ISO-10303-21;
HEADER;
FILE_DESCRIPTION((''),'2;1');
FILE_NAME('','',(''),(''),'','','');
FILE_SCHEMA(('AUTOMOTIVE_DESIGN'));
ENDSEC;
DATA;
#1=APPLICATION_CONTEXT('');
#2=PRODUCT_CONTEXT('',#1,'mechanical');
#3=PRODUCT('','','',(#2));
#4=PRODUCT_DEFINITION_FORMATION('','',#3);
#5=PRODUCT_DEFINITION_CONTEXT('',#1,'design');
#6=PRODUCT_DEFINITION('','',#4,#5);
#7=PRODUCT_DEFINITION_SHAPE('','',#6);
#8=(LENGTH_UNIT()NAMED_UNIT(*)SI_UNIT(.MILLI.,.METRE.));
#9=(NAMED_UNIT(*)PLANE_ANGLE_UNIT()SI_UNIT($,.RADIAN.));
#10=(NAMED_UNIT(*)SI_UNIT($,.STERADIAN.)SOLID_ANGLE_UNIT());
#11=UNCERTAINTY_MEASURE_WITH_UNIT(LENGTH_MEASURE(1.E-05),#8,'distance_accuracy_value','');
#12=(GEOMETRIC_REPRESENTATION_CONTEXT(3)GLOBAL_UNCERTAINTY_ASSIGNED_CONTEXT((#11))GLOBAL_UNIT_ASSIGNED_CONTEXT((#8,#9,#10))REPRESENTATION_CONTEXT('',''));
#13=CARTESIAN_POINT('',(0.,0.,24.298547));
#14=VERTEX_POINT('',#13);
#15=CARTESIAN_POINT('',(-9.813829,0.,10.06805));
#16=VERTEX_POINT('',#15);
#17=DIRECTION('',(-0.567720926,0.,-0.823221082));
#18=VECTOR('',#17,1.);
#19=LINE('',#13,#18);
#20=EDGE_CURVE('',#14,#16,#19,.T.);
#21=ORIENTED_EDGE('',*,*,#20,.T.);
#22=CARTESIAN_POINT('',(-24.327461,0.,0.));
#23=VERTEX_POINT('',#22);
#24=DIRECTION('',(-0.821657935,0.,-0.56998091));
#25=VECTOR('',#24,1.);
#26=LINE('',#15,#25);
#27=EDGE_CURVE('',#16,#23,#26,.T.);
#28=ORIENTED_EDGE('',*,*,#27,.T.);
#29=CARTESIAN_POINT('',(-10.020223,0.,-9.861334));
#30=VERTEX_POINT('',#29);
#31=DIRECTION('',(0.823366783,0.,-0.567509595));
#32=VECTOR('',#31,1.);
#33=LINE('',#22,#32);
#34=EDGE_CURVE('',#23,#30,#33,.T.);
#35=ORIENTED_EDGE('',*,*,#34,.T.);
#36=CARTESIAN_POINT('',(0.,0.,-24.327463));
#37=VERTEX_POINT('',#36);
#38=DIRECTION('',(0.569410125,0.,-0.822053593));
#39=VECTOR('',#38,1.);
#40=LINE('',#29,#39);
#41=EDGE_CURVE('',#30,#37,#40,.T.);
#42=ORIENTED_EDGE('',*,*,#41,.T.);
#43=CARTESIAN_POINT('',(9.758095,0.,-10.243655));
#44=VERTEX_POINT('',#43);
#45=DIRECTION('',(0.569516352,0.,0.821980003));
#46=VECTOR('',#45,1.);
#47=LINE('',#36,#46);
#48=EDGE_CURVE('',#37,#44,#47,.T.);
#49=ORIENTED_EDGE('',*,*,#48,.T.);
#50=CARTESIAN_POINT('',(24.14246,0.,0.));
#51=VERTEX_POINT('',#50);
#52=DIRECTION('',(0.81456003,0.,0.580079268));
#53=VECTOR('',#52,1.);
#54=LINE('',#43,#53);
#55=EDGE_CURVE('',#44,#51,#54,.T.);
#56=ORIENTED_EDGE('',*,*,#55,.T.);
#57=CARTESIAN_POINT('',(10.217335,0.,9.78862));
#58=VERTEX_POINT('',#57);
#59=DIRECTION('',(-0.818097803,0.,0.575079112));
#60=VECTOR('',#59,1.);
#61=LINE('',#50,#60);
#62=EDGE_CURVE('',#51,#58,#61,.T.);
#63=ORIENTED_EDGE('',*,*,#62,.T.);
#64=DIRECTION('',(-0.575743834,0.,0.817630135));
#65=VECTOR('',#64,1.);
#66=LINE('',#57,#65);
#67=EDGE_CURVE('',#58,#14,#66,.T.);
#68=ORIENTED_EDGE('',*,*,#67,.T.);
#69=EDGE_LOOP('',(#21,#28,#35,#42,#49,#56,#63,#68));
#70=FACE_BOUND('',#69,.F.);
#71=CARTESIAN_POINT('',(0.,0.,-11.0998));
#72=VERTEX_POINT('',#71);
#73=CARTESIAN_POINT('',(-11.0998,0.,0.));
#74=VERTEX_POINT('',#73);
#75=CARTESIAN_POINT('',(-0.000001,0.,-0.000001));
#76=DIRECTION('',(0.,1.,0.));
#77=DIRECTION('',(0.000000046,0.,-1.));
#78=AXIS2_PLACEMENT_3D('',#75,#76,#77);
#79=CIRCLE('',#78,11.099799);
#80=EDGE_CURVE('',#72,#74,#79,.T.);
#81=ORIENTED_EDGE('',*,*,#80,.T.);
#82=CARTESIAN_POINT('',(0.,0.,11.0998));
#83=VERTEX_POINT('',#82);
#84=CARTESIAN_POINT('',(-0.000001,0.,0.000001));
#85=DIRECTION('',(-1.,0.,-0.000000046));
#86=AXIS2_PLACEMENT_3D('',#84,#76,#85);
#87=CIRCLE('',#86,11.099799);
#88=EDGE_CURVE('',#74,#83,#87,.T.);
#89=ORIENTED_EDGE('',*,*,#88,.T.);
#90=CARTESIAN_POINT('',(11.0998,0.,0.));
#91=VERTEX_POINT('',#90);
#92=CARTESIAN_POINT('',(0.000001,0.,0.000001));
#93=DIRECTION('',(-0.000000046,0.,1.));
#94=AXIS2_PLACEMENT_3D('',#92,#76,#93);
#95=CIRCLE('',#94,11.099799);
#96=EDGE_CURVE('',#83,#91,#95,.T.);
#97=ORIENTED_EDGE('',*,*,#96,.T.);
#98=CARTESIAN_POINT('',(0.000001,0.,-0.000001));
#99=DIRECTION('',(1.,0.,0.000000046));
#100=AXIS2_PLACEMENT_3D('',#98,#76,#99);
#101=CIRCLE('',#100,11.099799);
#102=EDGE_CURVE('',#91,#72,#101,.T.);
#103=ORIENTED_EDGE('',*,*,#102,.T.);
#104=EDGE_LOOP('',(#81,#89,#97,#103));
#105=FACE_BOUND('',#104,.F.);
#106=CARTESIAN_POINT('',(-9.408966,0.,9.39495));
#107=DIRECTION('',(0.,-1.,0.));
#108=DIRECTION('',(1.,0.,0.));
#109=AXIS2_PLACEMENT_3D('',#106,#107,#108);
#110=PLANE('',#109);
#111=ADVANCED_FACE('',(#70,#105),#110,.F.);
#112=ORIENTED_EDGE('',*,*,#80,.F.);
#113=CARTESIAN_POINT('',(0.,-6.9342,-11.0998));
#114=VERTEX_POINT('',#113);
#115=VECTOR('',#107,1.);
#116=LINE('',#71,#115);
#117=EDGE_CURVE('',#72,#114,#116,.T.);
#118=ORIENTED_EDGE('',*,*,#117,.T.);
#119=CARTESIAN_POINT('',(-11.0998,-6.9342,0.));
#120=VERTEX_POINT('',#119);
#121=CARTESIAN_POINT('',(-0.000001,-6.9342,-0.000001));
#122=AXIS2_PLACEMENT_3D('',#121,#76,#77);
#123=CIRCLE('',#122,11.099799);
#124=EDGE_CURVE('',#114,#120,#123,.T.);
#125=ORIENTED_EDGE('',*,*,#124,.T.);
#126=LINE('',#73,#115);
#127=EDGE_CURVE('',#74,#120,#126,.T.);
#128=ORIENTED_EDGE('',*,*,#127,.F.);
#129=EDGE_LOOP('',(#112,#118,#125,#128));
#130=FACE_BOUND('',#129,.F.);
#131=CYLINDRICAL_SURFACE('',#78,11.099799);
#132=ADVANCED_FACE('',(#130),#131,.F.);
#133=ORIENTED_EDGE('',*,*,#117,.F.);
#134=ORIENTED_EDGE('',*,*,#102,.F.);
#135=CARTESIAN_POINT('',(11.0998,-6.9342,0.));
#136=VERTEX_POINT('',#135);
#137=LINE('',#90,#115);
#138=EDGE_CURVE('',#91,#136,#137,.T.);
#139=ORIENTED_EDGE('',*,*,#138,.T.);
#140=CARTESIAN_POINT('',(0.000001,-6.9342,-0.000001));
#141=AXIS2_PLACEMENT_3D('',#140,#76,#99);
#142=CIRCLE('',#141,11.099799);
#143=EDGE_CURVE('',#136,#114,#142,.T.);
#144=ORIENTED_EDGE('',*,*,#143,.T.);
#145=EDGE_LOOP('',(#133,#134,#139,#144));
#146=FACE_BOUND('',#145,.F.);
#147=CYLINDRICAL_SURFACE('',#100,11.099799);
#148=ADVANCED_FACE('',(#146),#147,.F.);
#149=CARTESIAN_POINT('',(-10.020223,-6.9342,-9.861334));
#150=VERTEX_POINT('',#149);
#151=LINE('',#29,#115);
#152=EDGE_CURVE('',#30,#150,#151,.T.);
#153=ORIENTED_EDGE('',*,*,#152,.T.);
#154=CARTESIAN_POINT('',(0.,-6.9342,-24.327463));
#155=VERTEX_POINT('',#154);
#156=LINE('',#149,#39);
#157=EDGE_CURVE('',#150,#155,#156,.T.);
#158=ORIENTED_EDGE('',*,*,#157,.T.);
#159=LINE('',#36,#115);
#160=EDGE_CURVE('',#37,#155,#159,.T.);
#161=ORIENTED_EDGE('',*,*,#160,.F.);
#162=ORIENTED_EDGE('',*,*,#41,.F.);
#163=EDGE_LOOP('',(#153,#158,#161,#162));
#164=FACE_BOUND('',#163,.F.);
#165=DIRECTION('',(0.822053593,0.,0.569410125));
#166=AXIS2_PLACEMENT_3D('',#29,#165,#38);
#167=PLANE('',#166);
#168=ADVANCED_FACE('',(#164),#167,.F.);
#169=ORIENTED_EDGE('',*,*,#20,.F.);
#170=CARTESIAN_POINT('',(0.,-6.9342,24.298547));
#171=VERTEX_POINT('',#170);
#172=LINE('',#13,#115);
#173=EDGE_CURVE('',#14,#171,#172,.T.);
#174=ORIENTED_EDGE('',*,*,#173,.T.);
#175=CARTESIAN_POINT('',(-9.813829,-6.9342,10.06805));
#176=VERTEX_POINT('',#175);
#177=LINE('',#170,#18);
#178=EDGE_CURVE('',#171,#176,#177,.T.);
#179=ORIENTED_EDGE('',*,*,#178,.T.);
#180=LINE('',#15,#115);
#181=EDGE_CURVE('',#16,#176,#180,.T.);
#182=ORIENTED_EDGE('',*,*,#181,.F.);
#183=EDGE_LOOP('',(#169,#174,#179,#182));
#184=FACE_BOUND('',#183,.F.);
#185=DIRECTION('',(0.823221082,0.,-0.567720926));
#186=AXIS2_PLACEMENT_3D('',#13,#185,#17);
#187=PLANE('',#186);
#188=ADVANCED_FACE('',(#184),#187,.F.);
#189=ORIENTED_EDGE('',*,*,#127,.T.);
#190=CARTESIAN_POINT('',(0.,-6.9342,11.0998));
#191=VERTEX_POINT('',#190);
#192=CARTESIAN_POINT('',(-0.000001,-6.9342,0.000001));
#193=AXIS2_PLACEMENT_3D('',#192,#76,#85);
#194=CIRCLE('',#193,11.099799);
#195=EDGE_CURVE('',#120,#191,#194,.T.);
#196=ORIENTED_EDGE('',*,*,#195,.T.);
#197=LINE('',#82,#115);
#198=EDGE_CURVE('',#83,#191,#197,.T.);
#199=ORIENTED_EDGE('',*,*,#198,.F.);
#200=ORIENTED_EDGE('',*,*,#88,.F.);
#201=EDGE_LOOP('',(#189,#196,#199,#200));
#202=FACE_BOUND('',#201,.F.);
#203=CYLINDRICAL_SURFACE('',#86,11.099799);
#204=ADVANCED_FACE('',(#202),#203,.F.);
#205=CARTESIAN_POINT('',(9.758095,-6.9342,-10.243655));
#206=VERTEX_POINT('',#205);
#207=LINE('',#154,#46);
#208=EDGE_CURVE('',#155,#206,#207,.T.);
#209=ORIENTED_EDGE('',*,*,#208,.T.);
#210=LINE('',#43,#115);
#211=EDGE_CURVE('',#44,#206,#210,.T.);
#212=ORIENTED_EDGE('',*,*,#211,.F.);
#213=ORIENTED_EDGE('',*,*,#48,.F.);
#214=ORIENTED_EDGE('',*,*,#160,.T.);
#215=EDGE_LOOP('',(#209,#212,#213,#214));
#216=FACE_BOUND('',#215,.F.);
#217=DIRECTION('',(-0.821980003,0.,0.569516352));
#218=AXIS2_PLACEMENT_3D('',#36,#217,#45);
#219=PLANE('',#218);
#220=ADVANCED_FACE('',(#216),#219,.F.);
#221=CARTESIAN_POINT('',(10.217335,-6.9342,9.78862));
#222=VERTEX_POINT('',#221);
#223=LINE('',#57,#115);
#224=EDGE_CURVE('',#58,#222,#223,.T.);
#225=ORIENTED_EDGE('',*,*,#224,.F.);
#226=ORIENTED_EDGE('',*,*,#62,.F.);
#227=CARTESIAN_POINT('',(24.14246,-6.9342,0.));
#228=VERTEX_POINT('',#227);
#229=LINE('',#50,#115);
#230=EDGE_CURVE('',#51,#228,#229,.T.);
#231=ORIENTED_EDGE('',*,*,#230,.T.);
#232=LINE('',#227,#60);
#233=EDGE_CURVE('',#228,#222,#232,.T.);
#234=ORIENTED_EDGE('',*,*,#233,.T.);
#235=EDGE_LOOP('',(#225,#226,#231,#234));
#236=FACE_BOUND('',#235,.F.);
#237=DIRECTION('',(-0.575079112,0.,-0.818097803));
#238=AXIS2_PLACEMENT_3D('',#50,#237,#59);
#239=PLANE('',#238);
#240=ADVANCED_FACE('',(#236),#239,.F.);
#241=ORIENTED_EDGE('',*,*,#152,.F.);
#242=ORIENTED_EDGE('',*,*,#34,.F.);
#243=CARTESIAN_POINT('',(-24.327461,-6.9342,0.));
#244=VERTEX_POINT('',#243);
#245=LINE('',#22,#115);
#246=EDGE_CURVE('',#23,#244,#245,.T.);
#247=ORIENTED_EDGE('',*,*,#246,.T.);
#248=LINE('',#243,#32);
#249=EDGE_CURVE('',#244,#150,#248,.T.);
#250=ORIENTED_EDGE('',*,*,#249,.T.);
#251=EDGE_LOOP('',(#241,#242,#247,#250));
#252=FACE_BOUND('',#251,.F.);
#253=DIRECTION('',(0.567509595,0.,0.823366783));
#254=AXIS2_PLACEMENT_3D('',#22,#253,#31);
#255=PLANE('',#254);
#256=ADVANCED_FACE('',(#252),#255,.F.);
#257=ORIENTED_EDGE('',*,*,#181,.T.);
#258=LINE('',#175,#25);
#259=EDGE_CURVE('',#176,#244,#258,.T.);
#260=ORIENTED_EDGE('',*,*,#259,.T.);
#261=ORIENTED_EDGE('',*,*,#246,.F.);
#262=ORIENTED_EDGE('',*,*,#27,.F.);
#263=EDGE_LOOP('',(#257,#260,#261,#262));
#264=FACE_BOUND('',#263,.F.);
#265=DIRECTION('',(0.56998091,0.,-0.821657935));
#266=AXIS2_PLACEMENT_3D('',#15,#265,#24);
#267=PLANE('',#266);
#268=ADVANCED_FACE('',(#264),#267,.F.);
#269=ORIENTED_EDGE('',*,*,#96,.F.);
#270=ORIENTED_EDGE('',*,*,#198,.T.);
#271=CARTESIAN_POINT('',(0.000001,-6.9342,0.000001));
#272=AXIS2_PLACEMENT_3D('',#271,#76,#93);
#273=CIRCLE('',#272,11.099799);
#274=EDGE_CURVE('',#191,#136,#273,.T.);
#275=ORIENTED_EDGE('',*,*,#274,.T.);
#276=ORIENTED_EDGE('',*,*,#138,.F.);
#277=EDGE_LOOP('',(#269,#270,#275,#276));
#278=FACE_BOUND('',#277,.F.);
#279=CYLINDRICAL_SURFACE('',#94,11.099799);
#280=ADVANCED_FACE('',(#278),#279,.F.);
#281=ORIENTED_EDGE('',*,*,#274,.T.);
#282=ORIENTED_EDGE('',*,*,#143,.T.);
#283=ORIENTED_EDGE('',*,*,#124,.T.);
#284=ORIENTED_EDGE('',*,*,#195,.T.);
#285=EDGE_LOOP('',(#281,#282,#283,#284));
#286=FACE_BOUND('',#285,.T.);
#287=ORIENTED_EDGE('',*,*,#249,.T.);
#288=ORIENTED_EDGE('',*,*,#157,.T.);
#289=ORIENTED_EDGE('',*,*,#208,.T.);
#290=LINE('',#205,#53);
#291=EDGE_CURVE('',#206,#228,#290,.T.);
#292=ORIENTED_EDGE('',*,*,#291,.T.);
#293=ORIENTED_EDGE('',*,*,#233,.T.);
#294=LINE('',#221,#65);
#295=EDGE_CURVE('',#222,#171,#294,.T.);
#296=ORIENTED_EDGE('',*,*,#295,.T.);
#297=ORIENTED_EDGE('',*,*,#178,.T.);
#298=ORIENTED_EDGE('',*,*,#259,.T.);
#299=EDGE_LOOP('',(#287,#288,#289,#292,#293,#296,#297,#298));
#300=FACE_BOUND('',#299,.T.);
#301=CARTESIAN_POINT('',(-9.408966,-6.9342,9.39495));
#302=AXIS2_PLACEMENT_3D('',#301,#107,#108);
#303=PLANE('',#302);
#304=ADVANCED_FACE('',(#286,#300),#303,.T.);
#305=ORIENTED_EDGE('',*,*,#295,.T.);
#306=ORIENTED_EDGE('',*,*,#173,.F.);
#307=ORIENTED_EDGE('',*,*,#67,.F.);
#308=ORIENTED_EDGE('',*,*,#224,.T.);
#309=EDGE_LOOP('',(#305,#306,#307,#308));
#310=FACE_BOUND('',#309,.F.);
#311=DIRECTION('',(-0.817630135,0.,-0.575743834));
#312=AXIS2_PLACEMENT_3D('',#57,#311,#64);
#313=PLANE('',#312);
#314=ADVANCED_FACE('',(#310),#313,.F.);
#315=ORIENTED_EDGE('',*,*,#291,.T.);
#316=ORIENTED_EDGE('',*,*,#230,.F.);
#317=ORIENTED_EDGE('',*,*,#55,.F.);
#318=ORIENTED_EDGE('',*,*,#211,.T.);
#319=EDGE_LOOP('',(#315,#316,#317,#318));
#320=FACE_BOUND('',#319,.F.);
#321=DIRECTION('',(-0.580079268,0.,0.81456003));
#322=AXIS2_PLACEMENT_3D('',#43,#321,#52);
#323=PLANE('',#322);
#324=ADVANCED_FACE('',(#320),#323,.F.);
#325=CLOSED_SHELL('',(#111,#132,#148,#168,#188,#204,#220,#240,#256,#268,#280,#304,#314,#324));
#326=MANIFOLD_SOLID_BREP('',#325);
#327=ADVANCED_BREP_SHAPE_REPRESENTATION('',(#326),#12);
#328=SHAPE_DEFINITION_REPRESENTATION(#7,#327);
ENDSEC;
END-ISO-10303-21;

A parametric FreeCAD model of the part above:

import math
import FreeCAD as App
import Part
import Sketcher
from FreeCAD import Vector
Q = App.Units.Quantity

doc = App.newDocument("Part")
body = doc.addObject("PartDesign::Body", "Body")

# Sketch on XZ plane
sketch1 = body.newObject("Sketcher::SketchObject", "Sketch")
sketch1.AttachmentSupport = (doc.getObject("XZ_Plane"), [""])
sketch1.MapMode = "FlatFace"
sketch1.addGeometry(Part.LineSegment(Vector(24, 0, 0), Vector(10, 10, 0)), False)
sketch1.addGeometry(Part.LineSegment(Vector(10, 10, 0), Vector(0, 24, 0)), False)
sketch1.addGeometry(Part.LineSegment(Vector(0, 24, 0), Vector(-10, 10, 0)), False)
sketch1.addGeometry(Part.LineSegment(Vector(-10, 10, 0), Vector(-24, 0, 0)), False)
sketch1.addGeometry(Part.LineSegment(Vector(-24, 0, 0), Vector(-10, -10, 0)), False)
sketch1.addGeometry(Part.LineSegment(Vector(-10, -10, 0), Vector(0, -24, 0)), False)
sketch1.addGeometry(Part.LineSegment(Vector(0, -24, 0), Vector(10, -10, 0)), False)
sketch1.addGeometry(Part.LineSegment(Vector(10, -10, 0), Vector(24, 0, 0)), False)
sketch1.addGeometry(Part.ArcOfCircle(Part.Circle(Vector(0, 0, 0), Vector(0, 0, 1), 11), math.radians(90), math.radians(180)), False)
sketch1.addGeometry(Part.ArcOfCircle(Part.Circle(Vector(0, 0, 0), Vector(0, 0, 1), 11), math.radians(0), math.radians(90)), False)
sketch1.addGeometry(Part.ArcOfCircle(Part.Circle(Vector(0, 0, 0), Vector(0, 0, 1), 11), math.radians(-90), math.radians(0)), False)
sketch1.addGeometry(Part.ArcOfCircle(Part.Circle(Vector(0, 0, 0), Vector(0, 0, 1), 11), math.radians(180), math.radians(270)), False)
sketch1.addConstraint(Sketcher.Constraint("Coincident", 0, 2, 1, 1))
sketch1.addConstraint(Sketcher.Constraint("Coincident", 1, 2, 2, 1))
sketch1.addConstraint(Sketcher.Constraint("Coincident", 2, 2, 3, 1))
sketch1.addConstraint(Sketcher.Constraint("Coincident", 3, 2, 4, 1))
sketch1.addConstraint(Sketcher.Constraint("Coincident", 4, 2, 5, 1))
sketch1.addConstraint(Sketcher.Constraint("Coincident", 5, 2, 6, 1))
sketch1.addConstraint(Sketcher.Constraint("Coincident", 6, 2, 7, 1))
sketch1.addConstraint(Sketcher.Constraint("Coincident", 7, 2, 0, 1))
sketch1.addConstraint(Sketcher.Constraint("Tangent", 8, 1, 9, 2))
sketch1.addConstraint(Sketcher.Constraint("Tangent", 9, 1, 10, 2))
sketch1.addConstraint(Sketcher.Constraint("Tangent", 10, 1, 11, 2))
sketch1.addConstraint(Sketcher.Constraint("Tangent", 11, 1, 8, 2))
sketch1.addConstraint(Sketcher.Constraint("Coincident", 8, 3, -1, 1))
sketch1.addConstraint(Sketcher.Constraint("Equal", 8, 9))
sketch1.addConstraint(Sketcher.Constraint("PointOnObject", 1, 2, -2))
sketch1.addConstraint(Sketcher.Constraint("PointOnObject", 3, 2, -1))
sketch1.addConstraint(Sketcher.Constraint("PointOnObject", 5, 2, -2))
sketch1.addConstraint(Sketcher.Constraint("PointOnObject", 7, 2, -1))
sketch1.addConstraint(Sketcher.Constraint("PointOnObject", 8, 1, -2))
sketch1.addConstraint(Sketcher.Constraint("PointOnObject", 9, 1, -1))
sketch1.addConstraint(Sketcher.Constraint("PointOnObject", 10, 1, -2))
sketch1.addConstraint(Sketcher.Constraint("PointOnObject", 11, 1, -1))
sketch1.addConstraint(Sketcher.Constraint("Radius", 8, Q("0.437 in")))
sketch1.addConstraint(Sketcher.Constraint("Distance", 1, 17.746321))
sketch1.addConstraint(Sketcher.Constraint("Distance", 2, 17.286361))
sketch1.addConstraint(Sketcher.Constraint("Distance", 5, 17.59755))
sketch1.addConstraint(Sketcher.Constraint("Distance", 7, 17.659061))
sketch1.addConstraint(Sketcher.Constraint("DistanceY", -1, 1, 0, 2, 9.78862))
sketch1.addConstraint(Sketcher.Constraint("DistanceX", 2, 2, -1, 1, 9.813829))
sketch1.addConstraint(Sketcher.Constraint("DistanceY", -1, 1, 2, 2, 10.06805))
sketch1.addConstraint(Sketcher.Constraint("DistanceX", 3, 2, -1, 1, 24.327461))
sketch1.addConstraint(Sketcher.Constraint("DistanceX", -1, 1, 7, 2, 24.14246))
sketch1.addConstraint(Sketcher.Constraint("DistanceY", 5, 2, 4, 2, 14.466129))
sketch1.addConstraint(Sketcher.Constraint("DistanceY", 5, 2, 6, 2, 14.083808))
sketch1.addConstraint(Sketcher.Constraint("Distance", 4, 17.376506))
pad1 = body.newObject("PartDesign::Pad", "Pad")
pad1.Profile = sketch1
pad1.Length = Q("0.273 in")

doc.recompute()
